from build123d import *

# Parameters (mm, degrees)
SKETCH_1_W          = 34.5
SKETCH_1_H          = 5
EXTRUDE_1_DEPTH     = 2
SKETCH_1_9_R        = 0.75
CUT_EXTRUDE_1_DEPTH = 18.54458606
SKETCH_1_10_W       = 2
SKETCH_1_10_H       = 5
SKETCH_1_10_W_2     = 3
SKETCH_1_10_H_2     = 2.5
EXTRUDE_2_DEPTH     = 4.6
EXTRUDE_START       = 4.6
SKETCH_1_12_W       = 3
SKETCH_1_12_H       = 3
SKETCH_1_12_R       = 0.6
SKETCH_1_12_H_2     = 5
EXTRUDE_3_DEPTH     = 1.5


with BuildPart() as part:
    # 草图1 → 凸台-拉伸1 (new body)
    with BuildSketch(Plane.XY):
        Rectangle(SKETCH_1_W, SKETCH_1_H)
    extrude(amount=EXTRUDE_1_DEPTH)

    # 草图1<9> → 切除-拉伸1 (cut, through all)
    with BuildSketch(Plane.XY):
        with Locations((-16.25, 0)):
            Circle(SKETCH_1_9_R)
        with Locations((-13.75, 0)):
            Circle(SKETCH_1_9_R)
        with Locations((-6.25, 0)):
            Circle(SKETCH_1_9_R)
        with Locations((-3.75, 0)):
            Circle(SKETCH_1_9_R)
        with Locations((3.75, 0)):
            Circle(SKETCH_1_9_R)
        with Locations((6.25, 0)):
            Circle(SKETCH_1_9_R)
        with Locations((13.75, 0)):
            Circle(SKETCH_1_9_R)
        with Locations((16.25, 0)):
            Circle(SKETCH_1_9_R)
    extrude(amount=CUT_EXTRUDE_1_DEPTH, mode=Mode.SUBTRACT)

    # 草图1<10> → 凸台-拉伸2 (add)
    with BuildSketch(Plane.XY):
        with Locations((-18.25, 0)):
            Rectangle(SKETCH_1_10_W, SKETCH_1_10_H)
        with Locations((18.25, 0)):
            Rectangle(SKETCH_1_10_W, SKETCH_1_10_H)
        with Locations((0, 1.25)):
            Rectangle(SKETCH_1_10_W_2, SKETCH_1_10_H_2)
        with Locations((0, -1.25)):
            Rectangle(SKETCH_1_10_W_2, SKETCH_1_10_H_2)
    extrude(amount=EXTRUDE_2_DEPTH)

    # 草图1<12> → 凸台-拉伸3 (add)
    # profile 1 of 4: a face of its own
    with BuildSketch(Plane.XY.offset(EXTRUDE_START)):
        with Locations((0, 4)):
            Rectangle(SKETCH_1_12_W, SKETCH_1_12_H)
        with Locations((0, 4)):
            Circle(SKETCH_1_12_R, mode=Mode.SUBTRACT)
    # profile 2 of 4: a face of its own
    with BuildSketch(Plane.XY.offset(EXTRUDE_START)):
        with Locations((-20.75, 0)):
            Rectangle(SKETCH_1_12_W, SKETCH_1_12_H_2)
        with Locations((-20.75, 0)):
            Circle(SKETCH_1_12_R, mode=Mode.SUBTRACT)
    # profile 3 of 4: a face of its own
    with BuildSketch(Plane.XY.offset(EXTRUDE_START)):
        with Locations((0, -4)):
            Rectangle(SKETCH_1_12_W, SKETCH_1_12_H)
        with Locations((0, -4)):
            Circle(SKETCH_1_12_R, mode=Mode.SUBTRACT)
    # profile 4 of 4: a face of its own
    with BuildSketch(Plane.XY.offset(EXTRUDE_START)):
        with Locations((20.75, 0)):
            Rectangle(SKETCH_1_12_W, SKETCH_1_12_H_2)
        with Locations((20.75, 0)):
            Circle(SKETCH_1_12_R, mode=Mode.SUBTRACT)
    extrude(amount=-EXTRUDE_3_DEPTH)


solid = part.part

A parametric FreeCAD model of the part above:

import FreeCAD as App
import Part
import Sketcher
Q = App.Units.Quantity

doc = App.newDocument("Part")
body = doc.addObject("PartDesign::Body", "Body")

sketch1 = body.newObject("Sketcher::SketchObject", "Sketch")
sketch1.AttachmentSupport = (doc.getObject("XY_Plane"), [""])
sketch1.MapMode = "FlatFace"
sketch1.addGeometry(Part.LineSegment(App.Vector(-17, 2, 0), App.Vector(-17, -2, 0)), False)
sketch1.addGeometry(Part.LineSegment(App.Vector(-17, -2, 0), App.Vector(17, -2, 0)), False)
sketch1.addGeometry(Part.LineSegment(App.Vector(17, -2, 0), App.Vector(17, 2, 0)), False)
sketch1.addGeometry(Part.LineSegment(App.Vector(17, 2, 0), App.Vector(-17, 2, 0)), False)
sketch1.addConstraint(Sketcher.Constraint("Coincident", 0, 2, 1, 1))
sketch1.addConstraint(Sketcher.Constraint("Coincident", 1, 2, 2, 1))
sketch1.addConstraint(Sketcher.Constraint("Coincident", 2, 2, 3, 1))
sketch1.addConstraint(Sketcher.Constraint("Coincident", 3, 2, 0, 1))
sketch1.addConstraint(Sketcher.Constraint("Vertical", 0))
sketch1.addConstraint(Sketcher.Constraint("Horizontal", 1))
sketch1.addConstraint(Sketcher.Constraint("Vertical", 2))
sketch1.addConstraint(Sketcher.Constraint("Horizontal", 3))
sketch1.addConstraint(Sketcher.Constraint("Symmetric", 0, 2, 2, 2, -1, 1))
sketch1.addConstraint(Sketcher.Constraint("DistanceY", 0, 2, 0, 1, Q("5 mm")))
sketch1.addConstraint(Sketcher.Constraint("DistanceX", 1, 1, 1, 2, Q("34.5 mm")))
pad1 = body.newObject("PartDesign::Pad", "Pad")
pad1.Profile = sketch1
pad1.Length = 2

sketch2 = body.newObject("Sketcher::SketchObject", "Sketch001")
sketch2.AttachmentSupport = (doc.getObject("XY_Plane"), [""])
sketch2.MapMode = "FlatFace"
sketch2.addGeometry(Part.Circle(App.Vector(-16.2, 0, 0), App.Vector(0, 0, 1), 0.8), False)
sketch2.addGeometry(Part.Circle(App.Vector(-13.8, 0, 0), App.Vector(0, 0, 1), 0.8), False)
sketch2.addGeometry(Part.Circle(App.Vector(-6.2, 0, 0), App.Vector(0, 0, 1), 0.8), False)
sketch2.addGeometry(Part.Circle(App.Vector(-3.8, 0, 0), App.Vector(0, 0, 1), 0.8), False)
sketch2.addGeometry(Part.Circle(App.Vector(3.8, 0, 0), App.Vector(0, 0, 1), 0.8), False)
sketch2.addGeometry(Part.Circle(App.Vector(6.2, 0, 0), App.Vector(0, 0, 1), 0.8), False)
sketch2.addGeometry(Part.Circle(App.Vector(13.8, 0, 0), App.Vector(0, 0, 1), 0.8), False)
sketch2.addGeometry(Part.Circle(App.Vector(16.2, 0, 0), App.Vector(0, 0, 1), 0.8), False)
sketch2.addConstraint(Sketcher.Constraint("Equal", 0, 1))
sketch2.addConstraint(Sketcher.Constraint("Equal", 1, 2))
sketch2.addConstraint(Sketcher.Constraint("Equal", 2, 3))
sketch2.addConstraint(Sketcher.Constraint("Equal", 3, 4))
sketch2.addConstraint(Sketcher.Constraint("Equal", 4, 5))
sketch2.addConstraint(Sketcher.Constraint("Equal", 5, 6))
sketch2.addConstraint(Sketcher.Constraint("Equal", 6, 7))
sketch2.addConstraint(Sketcher.Constraint("Symmetric", 3, 3, 4, 3, -1, 1))
sketch2.addConstraint(Sketcher.Constraint("Symmetric", 2, 3, 5, 3, -1, 1))
sketch2.addConstraint(Sketcher.Constraint("Symmetric", 1, 3, 6, 3, -1, 1))
sketch2.addConstraint(Sketcher.Constraint("Symmetric", 0, 3, 7, 3, -1, 1))
sketch2.addConstraint(Sketcher.Constraint("PointOnObject", 0, 3, -1))
sketch2.addConstraint(Sketcher.Constraint("PointOnObject", 1, 3, -1))
sketch2.addConstraint(Sketcher.Constraint("PointOnObject", 2, 3, -1))
sketch2.addConstraint(Sketcher.Constraint("PointOnObject", 3, 3, -1))
sketch2.addConstraint(Sketcher.Constraint("Diameter", 0, Q("1.5 mm")))
sketch2.addConstraint(Sketcher.Constraint("DistanceX", 0, 3, 2, 3, Q("10 mm")))
sketch2.addConstraint(Sketcher.Constraint("DistanceX", 1, 3, 3, 3, Q("10 mm")))
sketch2.addConstraint(Sketcher.Constraint("DistanceX", 2, 3, 4, 3, Q("10 mm")))
sketch2.addConstraint(Sketcher.Constraint("DistanceX", 0, 3, 1, 3, Q("2.5 mm")))
pocket1 = body.newObject("PartDesign::Pocket", "Pocket")
pocket1.Profile = sketch2
pocket1.Type = "ThroughAll"
pocket1.Reversed = True

sketch3 = body.newObject("Sketcher::SketchObject", "Sketch002")
sketch3.AttachmentSupport = (doc.getObject("XY_Plane"), [""])
sketch3.MapMode = "FlatFace"
sketch3.addGeometry(Part.LineSegment(App.Vector(-19.2, 2.5, 0), App.Vector(-19.2, -2.5, 0)), False)
sketch3.addGeometry(Part.LineSegment(App.Vector(-19.2, -2.5, 0), App.Vector(-17.2, -2.5, 0)), False)
sketch3.addGeometry(Part.LineSegment(App.Vector(-17.2, -2.5, 0), App.Vector(-17.2, 2.5, 0)), False)
sketch3.addGeometry(Part.LineSegment(App.Vector(-17.2, 2.5, 0), App.Vector(-19.2, 2.5, 0)), False)
sketch3.addGeometry(Part.LineSegment(App.Vector(17.2, 2.5, 0), App.Vector(17.2, -2.5, 0)), False)
sketch3.addGeometry(Part.LineSegment(App.Vector(17.2, -2.5, 0), App.Vector(19.2, -2.5, 0)), False)
sketch3.addGeometry(Part.LineSegment(App.Vector(19.2, -2.5, 0), App.Vector(19.2, 2.5, 0)), False)
sketch3.addGeometry(Part.LineSegment(App.Vector(19.2, 2.5, 0), App.Vector(17.2, 2.5, 0)), False)
sketch3.addGeometry(Part.LineSegment(App.Vector(-1.5, 2.5, 0), App.Vector(-1.5, -2.5, 0)), False)
sketch3.addGeometry(Part.LineSegment(App.Vector(-1.5, -2.5, 0), App.Vector(1.5, -2.5, 0)), False)
sketch3.addGeometry(Part.LineSegment(App.Vector(1.5, -2.5, 0), App.Vector(1.5, 2.5, 0)), False)
sketch3.addGeometry(Part.LineSegment(App.Vector(1.5, 2.5, 0), App.Vector(-1.5, 2.5, 0)), False)
sketch3.addConstraint(Sketcher.Constraint("Coincident", 0, 2, 1, 1))
sketch3.addConstraint(Sketcher.Constraint("Coincident", 1, 2, 2, 1))
sketch3.addConstraint(Sketcher.Constraint("Coincident", 2, 2, 3, 1))
sketch3.addConstraint(Sketcher.Constraint("Coincident", 3, 2, 0, 1))
sketch3.addConstraint(Sketcher.Constraint("Coincident", 4, 2, 5, 1))
sketch3.addConstraint(Sketcher.Constraint("Coincident", 5, 2, 6, 1))
sketch3.addConstraint(Sketcher.Constraint("Coincident", 6, 2, 7, 1))
sketch3.addConstraint(Sketcher.Constraint("Coincident", 7, 2, 4, 1))
sketch3.addConstraint(Sketcher.Constraint("Coincident", 8, 2, 9, 1))
sketch3.addConstraint(Sketcher.Constraint("Coincident", 9, 2, 10, 1))
sketch3.addConstraint(Sketcher.Constraint("Coincident", 10, 2, 11, 1))
sketch3.addConstraint(Sketcher.Constraint("Coincident", 11, 2, 8, 1))
sketch3.addConstraint(Sketcher.Constraint("Vertical", 0))
sketch3.addConstraint(Sketcher.Constraint("Horizontal", 1))
sketch3.addConstraint(Sketcher.Constraint("Vertical", 2))
sketch3.addConstraint(Sketcher.Constraint("Horizontal", 3))
sketch3.addConstraint(Sketcher.Constraint("Vertical", 4))
sketch3.addConstraint(Sketcher.Constraint("Horizontal", 5))
sketch3.addConstraint(Sketcher.Constraint("Vertical", 6))
sketch3.addConstraint(Sketcher.Constraint("Horizontal", 7))
sketch3.addConstraint(Sketcher.Constraint("Vertical", 8))
sketch3.addConstraint(Sketcher.Constraint("Horizontal", 9))
sketch3.addConstraint(Sketcher.Constraint("Vertical", 10))
sketch3.addConstraint(Sketcher.Constraint("Horizontal", 11))
sketch3.addConstraint(Sketcher.Constraint("Symmetric", 2, 2, 4, 2, -1, 1))
sketch3.addConstraint(Sketcher.Constraint("Symmetric", 0, 2, 6, 2, -1, 1))
sketch3.addConstraint(Sketcher.Constraint("Symmetric", 8, 2, 10, 2, -1, 1))
sketch3.addConstraint(Sketcher.Constraint("Horizontal", 1, 2, 4, 2))
sketch3.addConstraint(Sketcher.Constraint("Horizontal", 5, 2, 8, 2))
sketch3.addConstraint(Sketcher.Constraint("DistanceX", 1, 1, 1, 2, Q("2 mm")))
sketch3.addConstraint(Sketcher.Constraint("DistanceX", 9, 1, 9, 2, Q("3 mm")))
sketch3.addConstraint(Sketcher.Constraint("DistanceY", 0, 2, 0, 1, Q("5 mm")))
sketch3.addConstraint(Sketcher.Constraint("DistanceX", 1, 2, 4, 2, Q("34.5 mm")))
pad2 = body.newObject("PartDesign::Pad", "Pad001")
pad2.Profile = sketch3
pad2.Length = 4.6

sketch4 = body.newObject("Sketcher::SketchObject", "Sketch003")
sketch4.AttachmentSupport = (doc.getObject("XY_Plane"), [""])
sketch4.MapMode = "FlatFace"
sketch4.AttachmentOffset = App.Placement(App.Vector(0, 0, 4.6), App.Rotation())
sketch4.addGeometry(Part.LineSegment(App.Vector(-1.5, 5.5, 0), App.Vector(-1.5, 2.5, 0)), False)
sketch4.addGeometry(Part.LineSegment(App.Vector(-1.5, 2.5, 0), App.Vector(1.5, 2.5, 0)), False)
sketch4.addGeometry(Part.LineSegment(App.Vector(1.5, 2.5, 0), App.Vector(1.5, 5.5, 0)), False)
sketch4.addGeometry(Part.LineSegment(App.Vector(1.5, 5.5, 0), App.Vector(-1.5, 5.5, 0)), False)
sketch4.addGeometry(Part.Circle(App.Vector(0, 4, 0), App.Vector(0, 0, 1), 0.6), False)
sketch4.addGeometry(Part.LineSegment(App.Vector(-22.2, 2.5, 0), App.Vector(-22.2, -2.5, 0)), False)
sketch4.addGeometry(Part.LineSegment(App.Vector(-22.2, -2.5, 0), App.Vector(-19.2, -2.5, 0)), False)
sketch4.addGeometry(Part.LineSegment(App.Vector(-19.2, -2.5, 0), App.Vector(-19.2, 2.5, 0)), False)
sketch4.addGeometry(Part.LineSegment(App.Vector(-19.2, 2.5, 0), App.Vector(-22.2, 2.5, 0)), False)
sketch4.addGeometry(Part.Circle(App.Vector(-20.8, 0, 0), App.Vector(0, 0, 1), 0.6), False)
sketch4.addGeometry(Part.LineSegment(App.Vector(-1.5, -2.5, 0), App.Vector(-1.5, -5.5, 0)), False)
sketch4.addGeometry(Part.LineSegment(App.Vector(-1.5, -5.5, 0), App.Vector(1.5, -5.5, 0)), False)
sketch4.addGeometry(Part.LineSegment(App.Vector(1.5, -5.5, 0), App.Vector(1.5, -2.5, 0)), False)
sketch4.addGeometry(Part.LineSegment(App.Vector(1.5, -2.5, 0), App.Vector(-1.5, -2.5, 0)), False)
sketch4.addGeometry(Part.Circle(App.Vector(0, -4, 0), App.Vector(0, 0, 1), 0.6), False)
sketch4.addGeometry(Part.LineSegment(App.Vector(19.2, 2.5, 0), App.Vector(19.2, -2.5, 0)), False)
sketch4.addGeometry(Part.LineSegment(App.Vector(19.2, -2.5, 0), App.Vector(22.2, -2.5, 0)), False)
sketch4.addGeometry(Part.LineSegment(App.Vector(22.2, -2.5, 0), App.Vector(22.2, 2.5, 0)), False)
sketch4.addGeometry(Part.LineSegment(App.Vector(22.2, 2.5, 0), App.Vector(19.2, 2.5, 0)), False)
sketch4.addGeometry(Part.Circle(App.Vector(20.8, 0, 0), App.Vector(0, 0, 1), 0.6), False)
sketch4.addConstraint(Sketcher.Constraint("Coincident", 0, 2, 1, 1))
sketch4.addConstraint(Sketcher.Constraint("Coincident", 1, 2, 2, 1))
sketch4.addConstraint(Sketcher.Constraint("Coincident", 2, 2, 3, 1))
sketch4.addConstraint(Sketcher.Constraint("Coincident", 3, 2, 0, 1))
sketch4.addConstraint(Sketcher.Constraint("Coincident", 5, 2, 6, 1))
sketch4.addConstraint(Sketcher.Constraint("Coincident", 6, 2, 7, 1))
sketch4.addConstraint(Sketcher.Constraint("Coincident", 7, 2, 8, 1))
sketch4.addConstraint(Sketcher.Constraint("Coincident", 8, 2, 5, 1))
sketch4.addConstraint(Sketcher.Constraint("Coincident", 10, 2, 11, 1))
sketch4.addConstraint(Sketcher.Constraint("Coincident", 11, 2, 12, 1))
sketch4.addConstraint(Sketcher.Constraint("Coincident", 12, 2, 13, 1))
sketch4.addConstraint(Sketcher.Constraint("Coincident", 13, 2, 10, 1))
sketch4.addConstraint(Sketcher.Constraint("Coincident", 15, 2, 16, 1))
sketch4.addConstraint(Sketcher.Constraint("Coincident", 16, 2, 17, 1))
sketch4.addConstraint(Sketcher.Constraint("Coincident", 17, 2, 18, 1))
sketch4.addConstraint(Sketcher.Constraint("Coincident", 18, 2, 15, 1))
sketch4.addConstraint(Sketcher.Constraint("Vertical", 0))
sketch4.addConstraint(Sketcher.Constraint("Horizontal", 1))
sketch4.addConstraint(Sketcher.Constraint("Vertical", 2))
sketch4.addConstraint(Sketcher.Constraint("Horizontal", 3))
sketch4.addConstraint(Sketcher.Constraint("Vertical", 5))
sketch4.addConstraint(Sketcher.Constraint("Horizontal", 6))
sketch4.addConstraint(Sketcher.Constraint("Vertical", 7))
sketch4.addConstraint(Sketcher.Constraint("Horizontal", 8))
sketch4.addConstraint(Sketcher.Constraint("Vertical", 10))
sketch4.addConstraint(Sketcher.Constraint("Horizontal", 11))
sketch4.addConstraint(Sketcher.Constraint("Vertical", 12))
sketch4.addConstraint(Sketcher.Constraint("Horizontal", 13))
sketch4.addConstraint(Sketcher.Constraint("Vertical", 15))
sketch4.addConstraint(Sketcher.Constraint("Horizontal", 16))
sketch4.addConstraint(Sketcher.Constraint("Vertical", 17))
sketch4.addConstraint(Sketcher.Constraint("Horizontal", 18))
sketch4.addConstraint(Sketcher.Constraint("Equal", 4, 9))
sketch4.addConstraint(Sketcher.Constraint("Equal", 9, 14))
sketch4.addConstraint(Sketcher.Constraint("Equal", 14, 19))
sketch4.addConstraint(Sketcher.Constraint("Symmetric", 4, 3, 14, 3, -1, 1))
sketch4.addConstraint(Sketcher.Constraint("Symmetric", 9, 3, 19, 3, -1, 1))
sketch4.addConstraint(Sketcher.Constraint("Symmetric", 2, 2, 10, 2, -1, 1))
sketch4.addConstraint(Sketcher.Constraint("Symmetric", 0, 2, 12, 2, -1, 1))
sketch4.addConstraint(Sketcher.Constraint("Symmetric", 7, 2, 15, 2, -1, 1))
sketch4.addConstraint(Sketcher.Constraint("Symmetric", 5, 2, 17, 2, -1, 1))
sketch4.addConstraint(Sketcher.Constraint("PointOnObject", 4, 3, -2))
sketch4.addConstraint(Sketcher.Constraint("PointOnObject", 9, 3, -1))
sketch4.addConstraint(Sketcher.Constraint("Horizontal", 1, 2, 7, 2))
sketch4.addConstraint(Sketcher.Constraint("Horizontal", 6, 2, 12, 2))
sketch4.addConstraint(Sketcher.Constraint("Vertical", 3, 2, 10, 2))
sketch4.addConstraint(Sketcher.Constraint("Equal", 3, 6))
sketch4.addConstraint(Sketcher.Constraint("Equal", 18, 0))
sketch4.addConstraint(Sketcher.Constraint("Diameter", 4, Q("1.2 mm")))
sketch4.addConstraint(Sketcher.Constraint("DistanceX", 1, 1, 1, 2, Q("3 mm")))
sketch4.addConstraint(Sketcher.Constraint("DistanceY", 5, 2, 5, 1, Q("5 mm")))
sketch4.addConstraint(Sketcher.Constraint("DistanceY", -1, 1, 4, 3, Q("4 mm")))
sketch4.addConstraint(Sketcher.Constraint("DistanceX", 9, 3, 19, 3, Q("41.5 mm")))
sketch4.addConstraint(Sketcher.Constraint("DistanceX", 5, 2, 9, 3, Q("1.5 mm")))
pad3 = body.newObject("PartDesign::Pad", "Pad002")
pad3.Profile = sketch4
pad3.Length = 1.5
pad3.Reversed = True

doc.recompute()
